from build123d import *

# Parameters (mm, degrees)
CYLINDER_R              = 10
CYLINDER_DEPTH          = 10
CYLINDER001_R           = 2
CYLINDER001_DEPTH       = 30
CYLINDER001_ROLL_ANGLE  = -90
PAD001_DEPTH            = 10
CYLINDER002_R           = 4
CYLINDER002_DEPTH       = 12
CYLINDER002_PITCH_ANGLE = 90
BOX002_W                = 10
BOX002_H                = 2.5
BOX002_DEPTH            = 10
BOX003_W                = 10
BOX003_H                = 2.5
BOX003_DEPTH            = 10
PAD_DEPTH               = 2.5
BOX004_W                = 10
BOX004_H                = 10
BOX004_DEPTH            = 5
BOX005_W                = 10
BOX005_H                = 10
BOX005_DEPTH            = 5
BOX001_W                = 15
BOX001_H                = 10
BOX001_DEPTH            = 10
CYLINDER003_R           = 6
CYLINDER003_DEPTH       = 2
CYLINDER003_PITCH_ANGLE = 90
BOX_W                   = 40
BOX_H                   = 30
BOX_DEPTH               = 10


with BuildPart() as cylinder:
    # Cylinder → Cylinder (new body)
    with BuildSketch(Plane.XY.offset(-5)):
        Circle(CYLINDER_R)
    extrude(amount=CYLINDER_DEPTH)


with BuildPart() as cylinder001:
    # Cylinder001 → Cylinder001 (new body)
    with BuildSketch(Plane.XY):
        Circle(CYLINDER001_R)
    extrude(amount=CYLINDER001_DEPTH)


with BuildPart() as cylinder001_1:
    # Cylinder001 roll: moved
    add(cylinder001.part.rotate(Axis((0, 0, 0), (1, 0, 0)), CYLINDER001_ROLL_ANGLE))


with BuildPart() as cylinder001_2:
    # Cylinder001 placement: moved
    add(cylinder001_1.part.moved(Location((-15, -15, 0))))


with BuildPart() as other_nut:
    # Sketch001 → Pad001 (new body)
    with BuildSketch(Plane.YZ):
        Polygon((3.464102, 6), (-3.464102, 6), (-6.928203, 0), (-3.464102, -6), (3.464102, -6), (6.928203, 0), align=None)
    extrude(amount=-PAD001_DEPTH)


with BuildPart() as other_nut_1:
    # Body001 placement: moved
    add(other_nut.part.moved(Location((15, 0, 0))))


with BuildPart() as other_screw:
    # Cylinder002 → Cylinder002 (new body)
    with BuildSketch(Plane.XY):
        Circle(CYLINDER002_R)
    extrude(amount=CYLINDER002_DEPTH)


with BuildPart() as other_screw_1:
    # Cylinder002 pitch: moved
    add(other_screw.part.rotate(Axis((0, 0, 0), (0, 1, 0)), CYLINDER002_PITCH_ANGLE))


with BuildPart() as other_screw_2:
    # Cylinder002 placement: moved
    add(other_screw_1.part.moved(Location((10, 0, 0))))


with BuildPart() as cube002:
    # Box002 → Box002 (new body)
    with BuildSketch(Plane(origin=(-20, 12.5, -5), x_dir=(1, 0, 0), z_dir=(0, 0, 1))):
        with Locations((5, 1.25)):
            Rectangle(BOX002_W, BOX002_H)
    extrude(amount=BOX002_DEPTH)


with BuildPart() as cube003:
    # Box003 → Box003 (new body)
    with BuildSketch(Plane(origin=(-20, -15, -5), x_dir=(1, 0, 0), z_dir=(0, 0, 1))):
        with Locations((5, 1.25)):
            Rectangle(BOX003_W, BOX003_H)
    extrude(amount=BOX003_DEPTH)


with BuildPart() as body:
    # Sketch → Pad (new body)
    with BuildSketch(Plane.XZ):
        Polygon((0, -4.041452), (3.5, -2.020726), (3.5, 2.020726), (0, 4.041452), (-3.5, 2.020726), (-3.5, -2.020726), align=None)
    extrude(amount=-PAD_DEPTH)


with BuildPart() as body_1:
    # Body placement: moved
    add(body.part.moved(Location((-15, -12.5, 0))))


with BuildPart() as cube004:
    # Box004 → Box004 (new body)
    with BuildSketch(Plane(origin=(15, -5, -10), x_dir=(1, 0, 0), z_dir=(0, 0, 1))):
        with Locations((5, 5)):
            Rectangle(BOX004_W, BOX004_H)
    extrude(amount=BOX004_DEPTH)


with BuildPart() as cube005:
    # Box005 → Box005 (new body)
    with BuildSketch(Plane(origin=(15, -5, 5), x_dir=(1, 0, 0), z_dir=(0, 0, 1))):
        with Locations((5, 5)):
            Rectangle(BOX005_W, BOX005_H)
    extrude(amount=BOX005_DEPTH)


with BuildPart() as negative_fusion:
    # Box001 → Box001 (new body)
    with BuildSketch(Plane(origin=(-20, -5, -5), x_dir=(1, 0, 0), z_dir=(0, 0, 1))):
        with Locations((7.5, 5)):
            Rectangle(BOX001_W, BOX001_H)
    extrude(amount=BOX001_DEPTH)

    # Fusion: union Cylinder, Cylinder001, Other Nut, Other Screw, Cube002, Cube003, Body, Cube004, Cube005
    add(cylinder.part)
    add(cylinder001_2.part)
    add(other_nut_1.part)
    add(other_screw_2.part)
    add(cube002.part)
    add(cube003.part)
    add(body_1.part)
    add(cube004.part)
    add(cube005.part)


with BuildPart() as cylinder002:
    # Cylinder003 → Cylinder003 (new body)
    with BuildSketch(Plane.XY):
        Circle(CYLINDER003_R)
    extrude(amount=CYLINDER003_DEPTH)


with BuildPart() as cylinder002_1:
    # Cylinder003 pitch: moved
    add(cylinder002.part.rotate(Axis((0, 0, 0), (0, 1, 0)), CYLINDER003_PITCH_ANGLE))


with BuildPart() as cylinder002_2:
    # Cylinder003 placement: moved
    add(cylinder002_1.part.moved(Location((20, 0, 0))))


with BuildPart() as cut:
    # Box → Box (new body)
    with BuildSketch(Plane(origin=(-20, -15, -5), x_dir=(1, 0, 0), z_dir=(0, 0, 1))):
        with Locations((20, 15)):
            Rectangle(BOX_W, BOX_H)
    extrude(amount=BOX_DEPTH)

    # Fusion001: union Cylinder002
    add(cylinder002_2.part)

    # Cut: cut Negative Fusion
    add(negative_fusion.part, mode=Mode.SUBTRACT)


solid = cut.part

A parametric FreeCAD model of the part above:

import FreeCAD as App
import Part
import Sketcher

V = App.Vector
Q = App.Units.Quantity

doc = App.newDocument("Part")
body = doc.addObject("PartDesign::Body", "Body")

# Sketch on XY plane
sketch1 = body.newObject("Sketcher::SketchObject", "Sketch")
sketch1.AttachmentSupport = (doc.getObject("XY_Plane"), [""])
sketch1.MapMode = "FlatFace"
sketch1.AttachmentOffset = App.Placement(V(0, 0, -5), App.Rotation())
sketch1.addGeometry(Part.Circle(V(0, 0, 0), V(0, 0, 1), 10), False)
sketch1.addConstraint(Sketcher.Constraint("Coincident", 0, 3, -1, 1))
sketch1.addConstraint(Sketcher.Constraint("Diameter", 0, 20.0))
pad1 = body.newObject("PartDesign::Pad", "Pad")
pad1.Profile = sketch1
pad1.Length = 10
body2 = doc.addObject("PartDesign::Body", "Body001")

# Sketch on XY plane
sketch2 = body2.newObject("Sketcher::SketchObject", "Sketch001")
sketch2.AttachmentSupport = (doc.getObject("XY_Plane001"), [""])
sketch2.MapMode = "FlatFace"
sketch2.addGeometry(Part.Circle(V(0, 0, 0), V(0, 0, 1), 2), False)
sketch2.addConstraint(Sketcher.Constraint("Coincident", 0, 3, -1, 1))
sketch2.addConstraint(Sketcher.Constraint("Diameter", 0, 4.0))
pad2 = body2.newObject("PartDesign::Pad", "Pad001")
pad2.Profile = sketch2
pad2.Length = 30
body3 = doc.addObject("PartDesign::Body", "Body002")
doc.recompute()

body2.Placement = App.Placement(V(0, 0, 0), App.Rotation(V(1, 0, 0), 270))
boolean = body3.newObject("PartDesign::Boolean", "Boolean")
boolean.Type = "Fuse"
boolean.addObjects([body2])
body4 = doc.addObject("PartDesign::Body", "Body003")
doc.recompute()

body3.Placement = App.Placement(V(-15, -15, 0), App.Rotation(V(0, 0, 1), 0))
boolean2 = body4.newObject("PartDesign::Boolean", "Boolean001")
boolean2.Type = "Fuse"
boolean2.addObjects([body3])
body5 = doc.addObject("PartDesign::Body", "Body004")

# Sketch on YZ plane
sketch3 = body5.newObject("Sketcher::SketchObject", "Sketch002")
sketch3.AttachmentSupport = (doc.getObject("YZ_Plane004"), [""])
sketch3.MapMode = "FlatFace"
sketch3.addGeometry(Part.LineSegment(V(3, 6, 0), V(-3, 6, 0)), False)
sketch3.addGeometry(Part.LineSegment(V(-3, 6, 0), V(-7, 0, 0)), False)
sketch3.addGeometry(Part.LineSegment(V(-7, 0, 0), V(-3, -6, 0)), False)
sketch3.addGeometry(Part.LineSegment(V(-3, -6, 0), V(3, -6, 0)), False)
sketch3.addGeometry(Part.LineSegment(V(3, -6, 0), V(7, 0, 0)), False)
sketch3.addGeometry(Part.LineSegment(V(7, 0, 0), V(3, 6, 0)), False)
sketch3.addConstraint(Sketcher.Constraint("Coincident", 0, 2, 1, 1))
sketch3.addConstraint(Sketcher.Constraint("Coincident", 1, 2, 2, 1))
sketch3.addConstraint(Sketcher.Constraint("Coincident", 2, 2, 3, 1))
sketch3.addConstraint(Sketcher.Constraint("Coincident", 3, 2, 4, 1))
sketch3.addConstraint(Sketcher.Constraint("Coincident", 4, 2, 5, 1))
sketch3.addConstraint(Sketcher.Constraint("Coincident", 5, 2, 0, 1))
sketch3.addConstraint(Sketcher.Constraint("Horizontal", 0))
sketch3.addConstraint(Sketcher.Constraint("Horizontal", 3))
sketch3.addConstraint(Sketcher.Constraint("Symmetric", 0, 2, 3, 2, -1, 1))
sketch3.addConstraint(Sketcher.Constraint("Symmetric", 1, 2, 4, 2, -1, 1))
sketch3.addConstraint(Sketcher.Constraint("PointOnObject", 1, 2, -1))
sketch3.addConstraint(Sketcher.Constraint("Parallel", 2, 5))
sketch3.addConstraint(Sketcher.Constraint("Vertical", 0, 2, 2, 2))
sketch3.addConstraint(Sketcher.Constraint("Angle", 1, Q("-119.999996 deg")))
sketch3.addConstraint(Sketcher.Constraint("DistanceY", -1, 1, 0, 2, 6.0))
sketch3.addConstraint(Sketcher.Constraint("DistanceX", 0, 2, -1, 1, 3.464102))
pad3 = body5.newObject("PartDesign::Pad", "Pad002")
pad3.Profile = sketch3
pad3.Length = 10
pad3.Reversed = True
body6 = doc.addObject("PartDesign::Body", "Body005")
doc.recompute()

body5.Placement = App.Placement(V(15, 0, 0), App.Rotation(V(0, 0, 1), 0))
boolean3 = body6.newObject("PartDesign::Boolean", "Boolean002")
boolean3.Type = "Fuse"
boolean3.addObjects([body5])
body7 = doc.addObject("PartDesign::Body", "Body006")

# Sketch on XY plane
sketch4 = body7.newObject("Sketcher::SketchObject", "Sketch003")
sketch4.AttachmentSupport = (doc.getObject("XY_Plane006"), [""])
sketch4.MapMode = "FlatFace"
sketch4.addGeometry(Part.Circle(V(0, 0, 0), V(0, 0, 1), 4), False)
sketch4.addConstraint(Sketcher.Constraint("Coincident", 0, 3, -1, 1))
sketch4.addConstraint(Sketcher.Constraint("Diameter", 0, 8.0))
pad4 = body7.newObject("PartDesign::Pad", "Pad003")
pad4.Profile = sketch4
pad4.Length = 12
body8 = doc.addObject("PartDesign::Body", "Body007")
doc.recompute()

body7.Placement = App.Placement(V(0, 0, 0), App.Rotation(V(0, 1, 0), 90))
boolean4 = body8.newObject("PartDesign::Boolean", "Boolean003")
boolean4.Type = "Fuse"
boolean4.addObjects([body7])
body9 = doc.addObject("PartDesign::Body", "Body008")
doc.recompute()

body8.Placement = App.Placement(V(10, 0, 0), App.Rotation(V(0, 0, 1), 0))
boolean5 = body9.newObject("PartDesign::Boolean", "Boolean004")
boolean5.Type = "Fuse"
boolean5.addObjects([body8])
body10 = doc.addObject("PartDesign::Body", "Body009")

# Sketch on XY plane
sketch5 = body10.newObject("Sketcher::SketchObject", "Sketch004")
sketch5.AttachmentSupport = (doc.getObject("XY_Plane009"), [""])
sketch5.MapMode = "FlatFace"
sketch5.AttachmentOffset = App.Placement(V(0, 0, -5), App.Rotation())
sketch5.addGeometry(Part.LineSegment(V(-20, 15, 0), V(-20, 12.5, 0)), False)
sketch5.addGeometry(Part.LineSegment(V(-20, 12.5, 0), V(-10, 12.5, 0)), False)
sketch5.addGeometry(Part.LineSegment(V(-10, 12.5, 0), V(-10, 15, 0)), False)
sketch5.addGeometry(Part.LineSegment(V(-10, 15, 0), V(-20, 15, 0)), False)
sketch5.addConstraint(Sketcher.Constraint("Coincident", 0, 2, 1, 1))
sketch5.addConstraint(Sketcher.Constraint("Coincident", 1, 2, 2, 1))
sketch5.addConstraint(Sketcher.Constraint("Coincident", 2, 2, 3, 1))
sketch5.addConstraint(Sketcher.Constraint("Coincident", 3, 2, 0, 1))
sketch5.addConstraint(Sketcher.Constraint("Vertical", 0))
sketch5.addConstraint(Sketcher.Constraint("Horizontal", 1))
sketch5.addConstraint(Sketcher.Constraint("Vertical", 2))
sketch5.addConstraint(Sketcher.Constraint("Horizontal", 3))
sketch5.addConstraint(Sketcher.Constraint("DistanceX", 1, 1, 1, 2, 10.0))
sketch5.addConstraint(Sketcher.Constraint("DistanceY", 0, 2, 0, 1, 2.5))
sketch5.addConstraint(Sketcher.Constraint("DistanceX", 0, 2, -1, 1, 20.0))
sketch5.addConstraint(Sketcher.Constraint("DistanceY", -1, 1, 2, 2, 15.0))
pad5 = body10.newObject("PartDesign::Pad", "Pad004")
pad5.Profile = sketch5
pad5.Length = 10
body11 = doc.addObject("PartDesign::Body", "Body010")

# Sketch on XY plane
sketch6 = body11.newObject("Sketcher::SketchObject", "Sketch005")
sketch6.AttachmentSupport = (doc.getObject("XY_Plane010"), [""])
sketch6.MapMode = "FlatFace"
sketch6.AttachmentOffset = App.Placement(V(0, 0, -5), App.Rotation())
sketch6.addGeometry(Part.LineSegment(V(-20, -12.5, 0), V(-20, -15, 0)), False)
sketch6.addGeometry(Part.LineSegment(V(-20, -15, 0), V(-10, -15, 0)), False)
sketch6.addGeometry(Part.LineSegment(V(-10, -15, 0), V(-10, -12.5, 0)), False)
sketch6.addGeometry(Part.LineSegment(V(-10, -12.5, 0), V(-20, -12.5, 0)), False)
sketch6.addConstraint(Sketcher.Constraint("Coincident", 0, 2, 1, 1))
sketch6.addConstraint(Sketcher.Constraint("Coincident", 1, 2, 2, 1))
sketch6.addConstraint(Sketcher.Constraint("Coincident", 2, 2, 3, 1))
sketch6.addConstraint(Sketcher.Constraint("Coincident", 3, 2, 0, 1))
sketch6.addConstraint(Sketcher.Constraint("Vertical", 0))
sketch6.addConstraint(Sketcher.Constraint("Horizontal", 1))
sketch6.addConstraint(Sketcher.Constraint("Vertical", 2))
sketch6.addConstraint(Sketcher.Constraint("Horizontal", 3))
sketch6.addConstraint(Sketcher.Constraint("DistanceX", 1, 1, 1, 2, 10.0))
sketch6.addConstraint(Sketcher.Constraint("DistanceY", 0, 2, 0, 1, 2.5))
sketch6.addConstraint(Sketcher.Constraint("DistanceX", 0, 2, -1, 1, 20.0))
sketch6.addConstraint(Sketcher.Constraint("DistanceY", 0, 2, -1, 1, 15.0))
pad6 = body11.newObject("PartDesign::Pad", "Pad005")
pad6.Profile = sketch6
pad6.Length = 10
body12 = doc.addObject("PartDesign::Body", "Body011")

# Sketch on XZ plane
sketch7 = body12.newObject("Sketcher::SketchObject", "Sketch006")
sketch7.AttachmentSupport = (doc.getObject("XZ_Plane011"), [""])
sketch7.MapMode = "FlatFace"
sketch7.addGeometry(Part.LineSegment(V(0, -4, 0), V(3.5, -2, 0)), False)
sketch7.addGeometry(Part.LineSegment(V(3.5, -2, 0), V(3.5, 2, 0)), False)
sketch7.addGeometry(Part.LineSegment(V(3.5, 2, 0), V(0, 4, 0)), False)
sketch7.addGeometry(Part.LineSegment(V(0, 4, 0), V(-3.5, 2, 0)), False)
sketch7.addGeometry(Part.LineSegment(V(-3.5, 2, 0), V(-3.5, -2, 0)), False)
sketch7.addGeometry(Part.LineSegment(V(-3.5, -2, 0), V(0, -4, 0)), False)
sketch7.addConstraint(Sketcher.Constraint("Coincident", 0, 2, 1, 1))
sketch7.addConstraint(Sketcher.Constraint("Coincident", 1, 2, 2, 1))
sketch7.addConstraint(Sketcher.Constraint("Coincident", 2, 2, 3, 1))
sketch7.addConstraint(Sketcher.Constraint("Coincident", 3, 2, 4, 1))
sketch7.addConstraint(Sketcher.Constraint("Coincident", 4, 2, 5, 1))
sketch7.addConstraint(Sketcher.Constraint("Coincident", 5, 2, 0, 1))
sketch7.addConstraint(Sketcher.Constraint("Vertical", 1))
sketch7.addConstraint(Sketcher.Constraint("Vertical", 4))
sketch7.addConstraint(Sketcher.Constraint("Symmetric", 0, 2, 3, 2, -1, 1))
sketch7.addConstraint(Sketcher.Constraint("Symmetric", 2, 2, 5, 2, -1, 1))
sketch7.addConstraint(Sketcher.Constraint("PointOnObject", 2, 2, -2))
sketch7.addConstraint(Sketcher.Constraint("Parallel", 2, 5))
sketch7.addConstraint(Sketcher.Constraint("Horizontal", 1, 2, 3, 2))
sketch7.addConstraint(Sketcher.Constraint("Angle", 0, Q("30.000001 deg")))
sketch7.addConstraint(Sketcher.Constraint("DistanceX", 3, 2, 1, 2, 7.0))
sketch7.addConstraint(Sketcher.Constraint("DistanceY", 1, 1, 1, 2, 4.041452))
pad7 = body12.newObject("PartDesign::Pad", "Pad006")
pad7.Profile = sketch7
pad7.Length = 2.5
pad7.Reversed = True
body13 = doc.addObject("PartDesign::Body", "Body012")
doc.recompute()

body12.Placement = App.Placement(V(-15, -12.5, 0), App.Rotation(V(0, 0, 1), 0))
boolean6 = body13.newObject("PartDesign::Boolean", "Boolean005")
boolean6.Type = "Fuse"
boolean6.addObjects([body12])
body14 = doc.addObject("PartDesign::Body", "Body013")

# Sketch on XY plane
sketch8 = body14.newObject("Sketcher::SketchObject", "Sketch007")
sketch8.AttachmentSupport = (doc.getObject("XY_Plane013"), [""])
sketch8.MapMode = "FlatFace"
sketch8.AttachmentOffset = App.Placement(V(0, 0, -10), App.Rotation())
sketch8.addGeometry(Part.LineSegment(V(15, 5, 0), V(15, -5, 0)), False)
sketch8.addGeometry(Part.LineSegment(V(15, -5, 0), V(25, -5, 0)), False)
sketch8.addGeometry(Part.LineSegment(V(25, -5, 0), V(25, 5, 0)), False)
sketch8.addGeometry(Part.LineSegment(V(25, 5, 0), V(15, 5, 0)), False)
sketch8.addConstraint(Sketcher.Constraint("Coincident", 0, 2, 1, 1))
sketch8.addConstraint(Sketcher.Constraint("Coincident", 1, 2, 2, 1))
sketch8.addConstraint(Sketcher.Constraint("Coincident", 2, 2, 3, 1))
sketch8.addConstraint(Sketcher.Constraint("Coincident", 3, 2, 0, 1))
sketch8.addConstraint(Sketcher.Constraint("Vertical", 0))
sketch8.addConstraint(Sketcher.Constraint("Horizontal", 1))
sketch8.addConstraint(Sketcher.Constraint("Vertical", 2))
sketch8.addConstraint(Sketcher.Constraint("Horizontal", 3))
sketch8.addConstraint(Sketcher.Constraint("Equal", 3, 0))
sketch8.addConstraint(Sketcher.Constraint("DistanceX", 1, 1, 1, 2, 10.0))
sketch8.addConstraint(Sketcher.Constraint("DistanceX", -1, 1, 0, 2, 15.0))
sketch8.addConstraint(Sketcher.Constraint("DistanceY", 0, 2, -1, 1, 5.0))
pad8 = body14.newObject("PartDesign::Pad", "Pad007")
pad8.Profile = sketch8
pad8.Length = 5
body15 = doc.addObject("PartDesign::Body", "Body014")

# Sketch on XY plane
sketch9 = body15.newObject("Sketcher::SketchObject", "Sketch008")
sketch9.AttachmentSupport = (doc.getObject("XY_Plane014"), [""])
sketch9.MapMode = "FlatFace"
sketch9.AttachmentOffset = App.Placement(V(0, 0, 5), App.Rotation())
sketch9.addGeometry(Part.LineSegment(V(15, 5, 0), V(15, -5, 0)), False)
sketch9.addGeometry(Part.LineSegment(V(15, -5, 0), V(25, -5, 0)), False)
sketch9.addGeometry(Part.LineSegment(V(25, -5, 0), V(25, 5, 0)), False)
sketch9.addGeometry(Part.LineSegment(V(25, 5, 0), V(15, 5, 0)), False)
sketch9.addConstraint(Sketcher.Constraint("Coincident", 0, 2, 1, 1))
sketch9.addConstraint(Sketcher.Constraint("Coincident", 1, 2, 2, 1))
sketch9.addConstraint(Sketcher.Constraint("Coincident", 2, 2, 3, 1))
sketch9.addConstraint(Sketcher.Constraint("Coincident", 3, 2, 0, 1))
sketch9.addConstraint(Sketcher.Constraint("Vertical", 0))
sketch9.addConstraint(Sketcher.Constraint("Horizontal", 1))
sketch9.addConstraint(Sketcher.Constraint("Vertical", 2))
sketch9.addConstraint(Sketcher.Constraint("Horizontal", 3))
sketch9.addConstraint(Sketcher.Constraint("Equal", 3, 0))
sketch9.addConstraint(Sketcher.Constraint("DistanceX", 1, 1, 1, 2, 10.0))
sketch9.addConstraint(Sketcher.Constraint("DistanceX", -1, 1, 0, 2, 15.0))
sketch9.addConstraint(Sketcher.Constraint("DistanceY", 0, 2, -1, 1, 5.0))
pad9 = body15.newObject("PartDesign::Pad", "Pad008")
pad9.Profile = sketch9
pad9.Length = 5
body16 = doc.addObject("PartDesign::Body", "Body015")

# Sketch on XY plane
sketch10 = body16.newObject("Sketcher::SketchObject", "Sketch009")
sketch10.AttachmentSupport = (doc.getObject("XY_Plane015"), [""])
sketch10.MapMode = "FlatFace"
sketch10.AttachmentOffset = App.Placement(V(0, 0, -5), App.Rotation())
sketch10.addGeometry(Part.LineSegment(V(-20, 5, 0), V(-20, -5, 0)), False)
sketch10.addGeometry(Part.LineSegment(V(-20, -5, 0), V(-5, -5, 0)), False)
sketch10.addGeometry(Part.LineSegment(V(-5, -5, 0), V(-5, 5, 0)), False)
sketch10.addGeometry(Part.LineSegment(V(-5, 5, 0), V(-20, 5, 0)), False)
sketch10.addConstraint(Sketcher.Constraint("Coincident", 0, 2, 1, 1))
sketch10.addConstraint(Sketcher.Constraint("Coincident", 1, 2, 2, 1))
sketch10.addConstraint(Sketcher.Constraint("Coincident", 2, 2, 3, 1))
sketch10.addConstraint(Sketcher.Constraint("Coincident", 3, 2, 0, 1))
sketch10.addConstraint(Sketcher.Constraint("Vertical", 0))
sketch10.addConstraint(Sketcher.Constraint("Horizontal", 1))
sketch10.addConstraint(Sketcher.Constraint("Vertical", 2))
sketch10.addConstraint(Sketcher.Constraint("Horizontal", 3))
sketch10.addConstraint(Sketcher.Constraint("DistanceX", 1, 1, 1, 2, 15.0))
sketch10.addConstraint(Sketcher.Constraint("DistanceY", 0, 2, 0, 1, 10.0))
sketch10.addConstraint(Sketcher.Constraint("DistanceX", 0, 2, -1, 1, 20.0))
sketch10.addConstraint(Sketcher.Constraint("DistanceY", 0, 2, -1, 1, 5.0))
pad10 = body16.newObject("PartDesign::Pad", "Pad009")
pad10.Profile = sketch10
pad10.Length = 10
doc.recompute()

boolean7 = body16.newObject("PartDesign::Boolean", "Boolean006")
boolean7.Type = "Fuse"
boolean7.addObjects([body])
doc.recompute()

boolean8 = body16.newObject("PartDesign::Boolean", "Boolean007")
boolean8.Type = "Fuse"
boolean8.addObjects([body4])
doc.recompute()

boolean9 = body16.newObject("PartDesign::Boolean", "Boolean008")
boolean9.Type = "Fuse"
boolean9.addObjects([body6])
doc.recompute()

boolean10 = body16.newObject("PartDesign::Boolean", "Boolean009")
boolean10.Type = "Fuse"
boolean10.addObjects([body9])
doc.recompute()

boolean11 = body16.newObject("PartDesign::Boolean", "Boolean010")
boolean11.Type = "Fuse"
boolean11.addObjects([body10])
doc.recompute()

boolean12 = body16.newObject("PartDesign::Boolean", "Boolean011")
boolean12.Type = "Fuse"
boolean12.addObjects([body11])
doc.recompute()

boolean13 = body16.newObject("PartDesign::Boolean", "Boolean012")
boolean13.Type = "Fuse"
boolean13.addObjects([body13])
doc.recompute()

boolean14 = body16.newObject("PartDesign::Boolean", "Boolean013")
boolean14.Type = "Fuse"
boolean14.addObjects([body14])
doc.recompute()

boolean15 = body16.newObject("PartDesign::Boolean", "Boolean014")
boolean15.Type = "Fuse"
boolean15.addObjects([body15])
body17 = doc.addObject("PartDesign::Body", "Body016")

# Sketch on XY plane
sketch11 = body17.newObject("Sketcher::SketchObject", "Sketch010")
sketch11.AttachmentSupport = (doc.getObject("XY_Plane016"), [""])
sketch11.MapMode = "FlatFace"
sketch11.addGeometry(Part.Circle(V(0, 0, 0), V(0, 0, 1), 6), False)
sketch11.addConstraint(Sketcher.Constraint("Coincident", 0, 3, -1, 1))
sketch11.addConstraint(Sketcher.Constraint("Diameter", 0, 12.0))
pad11 = body17.newObject("PartDesign::Pad", "Pad010")
pad11.Profile = sketch11
pad11.Length = 2
body18 = doc.addObject("PartDesign::Body", "Body017")
doc.recompute()

body17.Placement = App.Placement(V(0, 0, 0), App.Rotation(V(0, 1, 0), 90))
boolean16 = body18.newObject("PartDesign::Boolean", "Boolean015")
boolean16.Type = "Fuse"
boolean16.addObjects([body17])
body19 = doc.addObject("PartDesign::Body", "Body018")
doc.recompute()

body18.Placement = App.Placement(V(20, 0, 0), App.Rotation(V(0, 0, 1), 0))
boolean17 = body19.newObject("PartDesign::Boolean", "Boolean016")
boolean17.Type = "Fuse"
boolean17.addObjects([body18])
body20 = doc.addObject("PartDesign::Body", "Body019")

# Sketch on XY plane
sketch12 = body20.newObject("Sketcher::SketchObject", "Sketch011")
sketch12.AttachmentSupport = (doc.getObject("XY_Plane019"), [""])
sketch12.MapMode = "FlatFace"
sketch12.AttachmentOffset = App.Placement(V(0, 0, -5), App.Rotation())
sketch12.addGeometry(Part.LineSegment(V(-20, 15, 0), V(-20, -15, 0)), False)
sketch12.addGeometry(Part.LineSegment(V(-20, -15, 0), V(20, -15, 0)), False)
sketch12.addGeometry(Part.LineSegment(V(20, -15, 0), V(20, 15, 0)), False)
sketch12.addGeometry(Part.LineSegment(V(20, 15, 0), V(-20, 15, 0)), False)
sketch12.addConstraint(Sketcher.Constraint("Coincident", 0, 2, 1, 1))
sketch12.addConstraint(Sketcher.Constraint("Coincident", 1, 2, 2, 1))
sketch12.addConstraint(Sketcher.Constraint("Coincident", 2, 2, 3, 1))
sketch12.addConstraint(Sketcher.Constraint("Coincident", 3, 2, 0, 1))
sketch12.addConstraint(Sketcher.Constraint("Vertical", 0))
sketch12.addConstraint(Sketcher.Constraint("Horizontal", 1))
sketch12.addConstraint(Sketcher.Constraint("Vertical", 2))
sketch12.addConstraint(Sketcher.Constraint("Horizontal", 3))
sketch12.addConstraint(Sketcher.Constraint("Symmetric", 0, 2, 2, 2, -1, 1))
sketch12.addConstraint(Sketcher.Constraint("DistanceX", 1, 1, 1, 2, 40.0))
sketch12.addConstraint(Sketcher.Constraint("DistanceY", 0, 2, 0, 1, 30.0))
pad12 = body20.newObject("PartDesign::Pad", "Pad011")
pad12.Profile = sketch12
pad12.Length = 10
doc.recompute()

boolean18 = body20.newObject("PartDesign::Boolean", "Boolean017")
boolean18.Type = "Fuse"
boolean18.addObjects([body19])
doc.recompute()

boolean19 = body20.newObject("PartDesign::Boolean", "Boolean018")
boolean19.Type = "Cut"
boolean19.addObjects([body16])

doc.recompute()
